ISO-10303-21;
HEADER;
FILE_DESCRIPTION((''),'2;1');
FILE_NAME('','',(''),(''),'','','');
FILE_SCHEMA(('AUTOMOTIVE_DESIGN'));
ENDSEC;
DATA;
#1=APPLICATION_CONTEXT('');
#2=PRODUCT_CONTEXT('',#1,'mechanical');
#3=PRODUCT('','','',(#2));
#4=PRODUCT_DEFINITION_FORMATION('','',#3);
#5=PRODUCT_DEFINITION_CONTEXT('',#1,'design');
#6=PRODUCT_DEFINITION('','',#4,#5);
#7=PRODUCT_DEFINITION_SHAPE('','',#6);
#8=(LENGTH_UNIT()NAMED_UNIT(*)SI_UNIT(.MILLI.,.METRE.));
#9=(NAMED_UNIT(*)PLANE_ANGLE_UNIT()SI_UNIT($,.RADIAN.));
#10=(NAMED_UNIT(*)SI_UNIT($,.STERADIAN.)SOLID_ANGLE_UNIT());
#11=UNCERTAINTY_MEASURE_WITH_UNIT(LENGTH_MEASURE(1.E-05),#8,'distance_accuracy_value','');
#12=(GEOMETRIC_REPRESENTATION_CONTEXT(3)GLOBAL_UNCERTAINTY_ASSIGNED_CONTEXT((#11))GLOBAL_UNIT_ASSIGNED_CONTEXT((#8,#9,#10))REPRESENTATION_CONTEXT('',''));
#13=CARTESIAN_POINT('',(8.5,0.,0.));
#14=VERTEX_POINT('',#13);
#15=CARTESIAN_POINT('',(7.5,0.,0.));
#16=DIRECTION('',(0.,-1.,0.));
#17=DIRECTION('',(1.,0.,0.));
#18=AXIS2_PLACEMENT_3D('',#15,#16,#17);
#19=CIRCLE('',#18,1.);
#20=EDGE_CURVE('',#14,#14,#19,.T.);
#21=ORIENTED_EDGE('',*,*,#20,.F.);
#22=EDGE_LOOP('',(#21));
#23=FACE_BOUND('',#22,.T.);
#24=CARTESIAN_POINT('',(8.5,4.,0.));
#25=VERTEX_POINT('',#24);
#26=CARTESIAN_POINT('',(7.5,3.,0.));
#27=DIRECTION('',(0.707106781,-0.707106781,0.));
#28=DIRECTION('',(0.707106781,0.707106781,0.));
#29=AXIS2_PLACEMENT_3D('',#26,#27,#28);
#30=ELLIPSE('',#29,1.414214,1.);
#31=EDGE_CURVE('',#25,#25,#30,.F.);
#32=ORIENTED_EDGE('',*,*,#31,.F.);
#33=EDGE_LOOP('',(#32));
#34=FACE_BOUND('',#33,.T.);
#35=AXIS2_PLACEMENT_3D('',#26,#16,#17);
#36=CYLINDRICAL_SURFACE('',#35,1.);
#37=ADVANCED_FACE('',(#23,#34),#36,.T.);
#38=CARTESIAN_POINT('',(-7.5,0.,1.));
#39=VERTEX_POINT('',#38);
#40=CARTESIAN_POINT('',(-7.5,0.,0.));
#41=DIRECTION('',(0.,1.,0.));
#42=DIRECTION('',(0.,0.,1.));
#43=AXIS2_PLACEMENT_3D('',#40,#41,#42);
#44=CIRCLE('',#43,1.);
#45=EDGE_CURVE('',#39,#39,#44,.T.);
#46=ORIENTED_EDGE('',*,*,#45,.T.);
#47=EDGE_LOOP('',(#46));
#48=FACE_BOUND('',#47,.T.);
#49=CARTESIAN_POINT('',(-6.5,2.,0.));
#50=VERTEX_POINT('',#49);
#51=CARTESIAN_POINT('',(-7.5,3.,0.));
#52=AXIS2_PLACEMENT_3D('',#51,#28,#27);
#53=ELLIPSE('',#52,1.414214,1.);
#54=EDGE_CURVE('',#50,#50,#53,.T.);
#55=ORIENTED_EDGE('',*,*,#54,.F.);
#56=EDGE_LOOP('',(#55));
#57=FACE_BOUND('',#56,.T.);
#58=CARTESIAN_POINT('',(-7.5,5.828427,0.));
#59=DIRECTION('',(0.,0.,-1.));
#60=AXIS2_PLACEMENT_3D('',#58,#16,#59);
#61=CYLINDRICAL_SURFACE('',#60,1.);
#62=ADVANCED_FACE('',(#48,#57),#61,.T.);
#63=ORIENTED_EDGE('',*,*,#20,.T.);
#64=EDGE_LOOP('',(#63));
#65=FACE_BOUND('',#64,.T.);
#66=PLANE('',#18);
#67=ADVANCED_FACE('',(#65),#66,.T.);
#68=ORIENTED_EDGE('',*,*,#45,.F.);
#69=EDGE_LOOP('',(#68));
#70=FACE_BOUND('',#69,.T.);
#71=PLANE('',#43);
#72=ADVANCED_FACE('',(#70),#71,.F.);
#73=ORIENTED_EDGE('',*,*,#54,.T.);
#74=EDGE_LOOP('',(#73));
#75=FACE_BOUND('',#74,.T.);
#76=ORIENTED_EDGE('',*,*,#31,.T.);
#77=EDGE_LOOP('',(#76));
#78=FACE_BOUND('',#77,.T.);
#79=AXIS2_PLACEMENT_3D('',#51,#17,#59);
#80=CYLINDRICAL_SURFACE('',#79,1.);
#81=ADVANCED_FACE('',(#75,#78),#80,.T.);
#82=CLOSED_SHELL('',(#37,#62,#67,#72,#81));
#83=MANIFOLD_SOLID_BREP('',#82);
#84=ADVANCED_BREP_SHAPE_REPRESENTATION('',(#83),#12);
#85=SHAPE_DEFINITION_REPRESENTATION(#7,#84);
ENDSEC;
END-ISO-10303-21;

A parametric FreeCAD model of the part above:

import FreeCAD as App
import Part
import Sketcher

V = App.Vector
Q = App.Units.Quantity

doc = App.newDocument("Part")
body = doc.addObject("PartDesign::Body", "Body")

# Sketch on XZ plane
sketch1 = doc.addObject("Sketcher::SketchObject", "Sketch")
body.addObject(sketch1)
sketch1.AttachmentSupport = (doc.XZ_Plane, [""])
sketch1.MapMode = "FlatFace"
sketch1.addGeometry(Part.Circle(V(-7.5, 0, 0), V(0, 0, 1), 1), False)
sketch1.addConstraint(Sketcher.Constraint("PointOnObject", 0, 3, -1))
sketch1.addConstraint(Sketcher.Constraint("Diameter", 0, Q("2 mm")))
sketch1.addConstraint(Sketcher.Constraint("DistanceX", 0, 3, -1, 1, Q("7.5 mm")))

# Sketch on XY plane
sketch2 = doc.addObject("Sketcher::SketchObject", "Sketch001")
body.addObject(sketch2)
sketch2.AttachmentSupport = (doc.XY_Plane, [""])
sketch2.MapMode = "FlatFace"
sketch2.addGeometry(Part.LineSegment(V(-7.5, 0, 0), V(-7.5, 3, 0)), False)
sketch2.addGeometry(Part.LineSegment(V(-7.5, 3, 0), V(7.5, 3, 0)), False)
sketch2.addGeometry(Part.LineSegment(V(7.5, 3, 0), V(7.5, 0, 0)), False)
sketch2.addConstraint(Sketcher.Constraint("Coincident", 0, 2, 1, 1))
sketch2.addConstraint(Sketcher.Constraint("Coincident", 1, 2, 2, 1))
sketch2.addConstraint(Sketcher.Constraint("Vertical", 0))
sketch2.addConstraint(Sketcher.Constraint("Horizontal", 1))
sketch2.addConstraint(Sketcher.Constraint("Vertical", 2))
sketch2.addConstraint(Sketcher.Constraint("Symmetric", 0, 1, 2, 2, -1, 1))
sketch2.addConstraint(Sketcher.Constraint("PointOnObject", 0, 1, -1))
sketch2.addConstraint(Sketcher.Constraint("DistanceX", 1, 1, 1, 2, Q("15 mm")))
sketch2.addConstraint(Sketcher.Constraint("DistanceY", 0, 1, 0, 2, Q("3 mm")))
doc.recompute()

additivepipe = doc.addObject("PartDesign::AdditivePipe", "AdditivePipe")
body.addObject(additivepipe)
additivepipe.Profile = sketch1
additivepipe.Spine = (sketch2, ["Edge1", "Edge2", "Edge3"])
additivepipe.Transition = "Right corner"

doc.recompute()
